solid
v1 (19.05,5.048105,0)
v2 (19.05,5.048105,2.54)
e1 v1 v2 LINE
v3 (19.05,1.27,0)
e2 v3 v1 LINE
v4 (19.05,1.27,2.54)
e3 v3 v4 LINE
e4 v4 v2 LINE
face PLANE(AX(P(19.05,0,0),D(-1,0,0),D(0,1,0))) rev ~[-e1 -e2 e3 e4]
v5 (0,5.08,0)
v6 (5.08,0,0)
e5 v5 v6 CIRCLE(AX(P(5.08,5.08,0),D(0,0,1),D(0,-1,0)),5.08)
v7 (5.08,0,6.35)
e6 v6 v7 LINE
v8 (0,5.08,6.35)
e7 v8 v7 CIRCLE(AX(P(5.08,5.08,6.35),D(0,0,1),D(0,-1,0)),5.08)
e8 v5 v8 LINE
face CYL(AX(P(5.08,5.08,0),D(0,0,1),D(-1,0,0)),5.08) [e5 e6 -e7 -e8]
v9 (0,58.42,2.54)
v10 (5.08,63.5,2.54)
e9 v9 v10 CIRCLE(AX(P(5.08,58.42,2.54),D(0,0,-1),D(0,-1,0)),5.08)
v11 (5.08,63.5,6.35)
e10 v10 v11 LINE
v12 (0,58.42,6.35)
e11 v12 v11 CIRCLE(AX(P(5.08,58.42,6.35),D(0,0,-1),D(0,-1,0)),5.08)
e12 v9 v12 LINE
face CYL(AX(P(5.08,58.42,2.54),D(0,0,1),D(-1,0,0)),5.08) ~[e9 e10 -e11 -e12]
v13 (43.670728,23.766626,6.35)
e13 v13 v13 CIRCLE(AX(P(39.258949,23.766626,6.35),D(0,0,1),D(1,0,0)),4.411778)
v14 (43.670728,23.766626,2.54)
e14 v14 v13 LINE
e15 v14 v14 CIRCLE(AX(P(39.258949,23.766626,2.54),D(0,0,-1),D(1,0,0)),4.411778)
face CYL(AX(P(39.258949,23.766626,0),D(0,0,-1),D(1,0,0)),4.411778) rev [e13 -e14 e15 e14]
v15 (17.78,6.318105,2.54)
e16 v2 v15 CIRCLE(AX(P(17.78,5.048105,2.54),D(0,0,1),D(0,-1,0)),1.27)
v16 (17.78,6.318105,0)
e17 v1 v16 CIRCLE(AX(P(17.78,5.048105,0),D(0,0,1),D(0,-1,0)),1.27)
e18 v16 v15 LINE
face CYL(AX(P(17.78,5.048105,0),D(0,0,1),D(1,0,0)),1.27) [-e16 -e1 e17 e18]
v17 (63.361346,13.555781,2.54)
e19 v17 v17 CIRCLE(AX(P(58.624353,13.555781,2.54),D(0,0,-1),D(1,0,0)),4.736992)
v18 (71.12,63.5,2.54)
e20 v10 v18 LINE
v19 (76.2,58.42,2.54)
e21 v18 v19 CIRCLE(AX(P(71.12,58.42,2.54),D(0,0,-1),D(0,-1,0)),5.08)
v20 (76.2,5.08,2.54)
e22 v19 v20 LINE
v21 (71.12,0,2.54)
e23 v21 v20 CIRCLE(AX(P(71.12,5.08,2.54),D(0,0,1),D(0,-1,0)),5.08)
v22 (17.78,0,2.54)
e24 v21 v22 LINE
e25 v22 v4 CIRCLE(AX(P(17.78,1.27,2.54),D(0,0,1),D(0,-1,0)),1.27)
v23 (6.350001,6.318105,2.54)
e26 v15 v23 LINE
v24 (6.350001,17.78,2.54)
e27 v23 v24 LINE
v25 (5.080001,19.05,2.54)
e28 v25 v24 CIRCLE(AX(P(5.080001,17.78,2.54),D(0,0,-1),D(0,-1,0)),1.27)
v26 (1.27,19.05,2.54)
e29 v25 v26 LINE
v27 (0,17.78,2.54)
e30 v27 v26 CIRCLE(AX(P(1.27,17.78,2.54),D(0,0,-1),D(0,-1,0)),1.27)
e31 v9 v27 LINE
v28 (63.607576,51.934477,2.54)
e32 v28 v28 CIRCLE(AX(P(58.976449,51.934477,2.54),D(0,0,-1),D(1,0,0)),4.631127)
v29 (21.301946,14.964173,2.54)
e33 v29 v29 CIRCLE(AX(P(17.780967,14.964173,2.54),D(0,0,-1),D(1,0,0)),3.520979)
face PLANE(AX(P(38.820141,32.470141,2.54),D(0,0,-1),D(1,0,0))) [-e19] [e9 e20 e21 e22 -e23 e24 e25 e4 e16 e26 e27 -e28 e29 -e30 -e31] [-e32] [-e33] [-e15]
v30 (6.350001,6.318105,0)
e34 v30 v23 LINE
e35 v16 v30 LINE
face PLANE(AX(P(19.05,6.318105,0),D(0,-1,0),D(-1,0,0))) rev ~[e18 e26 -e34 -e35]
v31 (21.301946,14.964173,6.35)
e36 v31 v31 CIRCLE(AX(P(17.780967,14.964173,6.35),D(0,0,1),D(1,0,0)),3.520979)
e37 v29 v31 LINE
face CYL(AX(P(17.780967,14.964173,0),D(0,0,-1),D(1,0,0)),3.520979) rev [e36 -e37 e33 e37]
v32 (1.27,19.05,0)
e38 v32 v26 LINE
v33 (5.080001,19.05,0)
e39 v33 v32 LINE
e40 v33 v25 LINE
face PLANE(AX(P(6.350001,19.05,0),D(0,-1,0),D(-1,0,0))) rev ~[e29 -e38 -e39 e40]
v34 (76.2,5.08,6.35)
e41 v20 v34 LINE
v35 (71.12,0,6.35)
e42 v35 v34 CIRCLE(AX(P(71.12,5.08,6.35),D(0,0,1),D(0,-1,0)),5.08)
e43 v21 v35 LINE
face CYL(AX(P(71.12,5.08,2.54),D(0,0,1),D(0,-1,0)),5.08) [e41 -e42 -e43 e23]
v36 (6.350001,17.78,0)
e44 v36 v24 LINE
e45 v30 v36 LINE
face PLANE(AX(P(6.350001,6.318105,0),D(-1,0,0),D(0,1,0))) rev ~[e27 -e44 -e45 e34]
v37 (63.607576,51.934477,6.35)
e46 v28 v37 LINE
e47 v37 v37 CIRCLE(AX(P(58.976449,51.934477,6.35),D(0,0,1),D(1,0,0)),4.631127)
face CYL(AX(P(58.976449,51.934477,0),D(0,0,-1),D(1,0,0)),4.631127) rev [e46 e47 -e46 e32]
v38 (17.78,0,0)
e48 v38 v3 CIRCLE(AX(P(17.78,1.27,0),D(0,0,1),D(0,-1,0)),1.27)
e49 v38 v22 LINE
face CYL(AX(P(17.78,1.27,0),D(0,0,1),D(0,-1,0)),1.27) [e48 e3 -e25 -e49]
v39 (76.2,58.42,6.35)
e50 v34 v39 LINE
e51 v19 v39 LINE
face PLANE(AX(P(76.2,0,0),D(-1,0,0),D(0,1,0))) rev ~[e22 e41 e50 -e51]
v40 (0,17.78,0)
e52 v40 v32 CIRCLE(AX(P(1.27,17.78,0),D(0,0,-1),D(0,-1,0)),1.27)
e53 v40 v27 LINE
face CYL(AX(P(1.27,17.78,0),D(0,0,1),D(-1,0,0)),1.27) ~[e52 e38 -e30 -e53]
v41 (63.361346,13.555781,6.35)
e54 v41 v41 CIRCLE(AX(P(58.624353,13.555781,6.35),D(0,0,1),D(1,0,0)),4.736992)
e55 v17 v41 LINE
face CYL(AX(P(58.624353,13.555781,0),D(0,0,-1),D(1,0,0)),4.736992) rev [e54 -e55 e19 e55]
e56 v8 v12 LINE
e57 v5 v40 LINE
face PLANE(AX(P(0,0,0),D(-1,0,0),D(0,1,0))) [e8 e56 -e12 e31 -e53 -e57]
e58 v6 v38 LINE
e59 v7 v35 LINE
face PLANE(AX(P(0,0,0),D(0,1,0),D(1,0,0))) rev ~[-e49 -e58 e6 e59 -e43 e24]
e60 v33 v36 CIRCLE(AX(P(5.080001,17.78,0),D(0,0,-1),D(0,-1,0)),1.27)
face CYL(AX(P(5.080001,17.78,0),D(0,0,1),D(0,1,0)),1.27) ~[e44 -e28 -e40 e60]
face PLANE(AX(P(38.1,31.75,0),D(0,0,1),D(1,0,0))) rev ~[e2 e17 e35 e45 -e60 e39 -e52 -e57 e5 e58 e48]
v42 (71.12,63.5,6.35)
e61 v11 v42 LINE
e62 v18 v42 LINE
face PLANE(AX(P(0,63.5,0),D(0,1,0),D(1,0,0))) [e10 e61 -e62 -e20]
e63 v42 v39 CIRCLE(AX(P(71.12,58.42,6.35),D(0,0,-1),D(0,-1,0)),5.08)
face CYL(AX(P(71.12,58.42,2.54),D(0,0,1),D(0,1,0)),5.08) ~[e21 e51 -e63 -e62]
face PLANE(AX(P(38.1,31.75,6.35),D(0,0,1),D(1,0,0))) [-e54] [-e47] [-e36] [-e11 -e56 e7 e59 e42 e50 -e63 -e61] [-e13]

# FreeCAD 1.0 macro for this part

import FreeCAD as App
import Part
import Sketcher

V = App.Vector
Q = App.Units.Quantity


def edges_at(feature, points):
    """Names of the edges that pass closest to the given points."""
    edges = feature.Shape.Edges
    near = lambda p: min(range(len(edges)), key=lambda i: edges[i].distToShape(Part.Vertex(*p))[0])
    return sorted({f"Edge{near(p) + 1}" for p in points})

doc = App.newDocument("Part")
params = doc.addObject("Spreadsheet::Sheet", "Params")
for row, (alias, value) in enumerate([
    ("sketch1_width", "3 in"),
    ("sketch1_height", "2.5 in"),
    ("pad1_length", "0.25 in"),
    ("sketch2_width", "3 in"),
    ("sketch2_width2", "0.5 in"),
    ("sketch2_height", "2.5 in"),
    ("sketch2_width3", "0.25 in"),
    ("sketch2_height2", "1.75 in"),
    ("pocket1_length", "0.1 in"),
    ("fillet_radius", "0.2 in"),
    ("fillet2_radius", "0.05 in"),
], start=1):
    params.set(f"A{row}", alias)
    params.set(f"B{row}", "=" + value)
    params.setAlias(f"B{row}", alias)

body = doc.addObject("PartDesign::Body", "Body")

# Sketch on XY plane
sketch1 = body.newObject("Sketcher::SketchObject", "Sketch")
sketch1.AttachmentSupport = (doc.getObject("XY_Plane"), [""])
sketch1.MapMode = "FlatFace"
sketch1.addGeometry([
    Part.LineSegment(V(0, 63.5, 0), V(0, 0, 0)),  # 0
    Part.LineSegment(V(0, 0, 0), V(76.2, 0, 0)),  # 1
    Part.LineSegment(V(76.2, 0, 0), V(76.2, 63.5, 0)),  # 2
    Part.LineSegment(V(76.2, 63.5, 0), V(0, 63.5, 0)),  # 3
    Part.Circle(V(17.8, 15, 0), V(0, 0, 1), 3.5),  # 4
    Part.Circle(V(58.6, 13.6, 0), V(0, 0, 1), 4.7),  # 5
    Part.Circle(V(39.3, 23.8, 0), V(0, 0, 1), 4.4),  # 6
    Part.Circle(V(59, 51.9, 0), V(0, 0, 1), 4.6),  # 7
], False)
sketch1.addConstraint([
    Sketcher.Constraint("Coincident", 0, 2, 1, 1),
    Sketcher.Constraint("Coincident", 1, 2, 2, 1),
    Sketcher.Constraint("Coincident", 2, 2, 3, 1),
    Sketcher.Constraint("Coincident", 3, 2, 0, 1),
    Sketcher.Constraint("Vertical", 0),
    Sketcher.Constraint("Horizontal", 1),
    Sketcher.Constraint("Vertical", 2),
    Sketcher.Constraint("Horizontal", 3),
    Sketcher.Constraint("Coincident", 0, 2, -1, 1),
    Sketcher.Constraint("DistanceX", 1, 1, 1, 2, Q("3 in")),
    Sketcher.Constraint("DistanceY", 0, 2, 0, 1, Q("2.5 in")),
    Sketcher.Constraint("Diameter", 4, 7.041958),
    Sketcher.Constraint("Diameter", 5, 9.473984),
    Sketcher.Constraint("Diameter", 6, 8.823556),
    Sketcher.Constraint("Diameter", 7, 9.262255),
    Sketcher.Constraint("DistanceX", 6, 3, 7, 3, 19.7175),
    Sketcher.Constraint("DistanceY", -1, 1, 5, 3, 13.555781),
    Sketcher.Constraint("DistanceX", -1, 1, 6, 3, 39.258949),
    Sketcher.Constraint("DistanceY", 5, 3, 4, 3, 1.408392),
    Sketcher.Constraint("DistanceY", 6, 3, 7, 3, 28.167851),
    Sketcher.Constraint("DistanceX", -1, 1, 4, 3, 17.780967),
    Sketcher.Constraint("DistanceX", -1, 1, 5, 3, 58.624353),
    Sketcher.Constraint("DistanceY", -1, 1, 6, 3, 23.766626),
])
sketch1.setExpression("Constraints[9]", "Params.sketch1_width")
sketch1.setExpression("Constraints[10]", "Params.sketch1_height")
pad1 = body.newObject("PartDesign::Pad", "Pad")
pad1.Profile = sketch1
pad1.setExpression("Length", "Params.pad1_length")

# Sketch on XY plane
sketch2 = body.newObject("Sketcher::SketchObject", "Sketch001")
sketch2.AttachmentSupport = (doc.getObject("XY_Plane"), [""])
sketch2.MapMode = "FlatFace"
sketch2.addGeometry([
    Part.LineSegment(V(19, 6, 0), V(6, 6, 0)),  # 0
    Part.LineSegment(V(6, 6, 0), V(6, 19, 0)),  # 1
    Part.LineSegment(V(6, 19, 0), V(0, 19, 0)),  # 2
    Part.LineSegment(V(0, 19, 0), V(0, 64, 0)),  # 3
    Part.LineSegment(V(0, 64, 0), V(76, 64, 0)),  # 4
    Part.LineSegment(V(76, 64, 0), V(76, 0, 0)),  # 5
    Part.LineSegment(V(76, 0, 0), V(19, 0, 0)),  # 6
    Part.LineSegment(V(19, 0, 0), V(19, 6, 0)),  # 7
], False)
sketch2.addConstraint([
    Sketcher.Constraint("Coincident", 0, 2, 1, 1),
    Sketcher.Constraint("Coincident", 1, 2, 2, 1),
    Sketcher.Constraint("Coincident", 2, 2, 3, 1),
    Sketcher.Constraint("Coincident", 3, 2, 4, 1),
    Sketcher.Constraint("Coincident", 4, 2, 5, 1),
    Sketcher.Constraint("Coincident", 5, 2, 6, 1),
    Sketcher.Constraint("Coincident", 6, 2, 7, 1),
    Sketcher.Constraint("Coincident", 7, 2, 0, 1),
    Sketcher.Constraint("Horizontal", 0),
    Sketcher.Constraint("Vertical", 1),
    Sketcher.Constraint("Horizontal", 2),
    Sketcher.Constraint("Vertical", 3),
    Sketcher.Constraint("Horizontal", 4),
    Sketcher.Constraint("Vertical", 5),
    Sketcher.Constraint("Horizontal", 6),
    Sketcher.Constraint("Vertical", 7),
    Sketcher.Constraint("PointOnObject", 2, 2, -2),
    Sketcher.Constraint("PointOnObject", 5, 2, -1),
    Sketcher.Constraint("DistanceX", 4, 1, 4, 2, Q("3 in")),
    Sketcher.Constraint("DistanceX", 0, 2, 0, 1, Q("0.5 in")),
    Sketcher.Constraint("DistanceY", 5, 2, 5, 1, Q("2.5 in")),
    Sketcher.Constraint("DistanceX", 2, 2, 2, 1, Q("0.25 in")),
    Sketcher.Constraint("DistanceY", 3, 1, 3, 2, Q("1.75 in")),
    Sketcher.Constraint("DistanceY", 1, 1, 1, 2, 12.731895),
])
sketch2.setExpression("Constraints[18]", "Params.sketch2_width")
sketch2.setExpression("Constraints[19]", "Params.sketch2_width2")
sketch2.setExpression("Constraints[20]", "Params.sketch2_height")
sketch2.setExpression("Constraints[21]", "Params.sketch2_width3")
sketch2.setExpression("Constraints[22]", "Params.sketch2_height2")
pocket1 = body.newObject("PartDesign::Pocket", "Pocket")
pocket1.Profile = sketch2
pocket1.setExpression("Length", "Params.pocket1_length")
pocket1.Reversed = True
doc.recompute()

fillet = body.newObject("PartDesign::Fillet", "Fillet")
fillet.Base = (pocket1, edges_at(pocket1, [
    (0, 63.5, 4.445),
    (76.2, 63.5, 4.445),
    (76.2, 0, 4.445),
    (0, 0, 3.175),
]))
fillet.setExpression("Radius", "Params.fillet_radius")
doc.recompute()

fillet2 = body.newObject("PartDesign::Fillet", "Fillet001")
fillet2.Base = (fillet, edges_at(fillet, [
    (6.35, 19.05, 1.27),
    (19.05, 6.318, 1.27),
    (0, 19.05, 1.27),
    (19.05, 0, 1.27),
]))
fillet2.setExpression("Radius", "Params.fillet2_radius")

doc.recompute()
